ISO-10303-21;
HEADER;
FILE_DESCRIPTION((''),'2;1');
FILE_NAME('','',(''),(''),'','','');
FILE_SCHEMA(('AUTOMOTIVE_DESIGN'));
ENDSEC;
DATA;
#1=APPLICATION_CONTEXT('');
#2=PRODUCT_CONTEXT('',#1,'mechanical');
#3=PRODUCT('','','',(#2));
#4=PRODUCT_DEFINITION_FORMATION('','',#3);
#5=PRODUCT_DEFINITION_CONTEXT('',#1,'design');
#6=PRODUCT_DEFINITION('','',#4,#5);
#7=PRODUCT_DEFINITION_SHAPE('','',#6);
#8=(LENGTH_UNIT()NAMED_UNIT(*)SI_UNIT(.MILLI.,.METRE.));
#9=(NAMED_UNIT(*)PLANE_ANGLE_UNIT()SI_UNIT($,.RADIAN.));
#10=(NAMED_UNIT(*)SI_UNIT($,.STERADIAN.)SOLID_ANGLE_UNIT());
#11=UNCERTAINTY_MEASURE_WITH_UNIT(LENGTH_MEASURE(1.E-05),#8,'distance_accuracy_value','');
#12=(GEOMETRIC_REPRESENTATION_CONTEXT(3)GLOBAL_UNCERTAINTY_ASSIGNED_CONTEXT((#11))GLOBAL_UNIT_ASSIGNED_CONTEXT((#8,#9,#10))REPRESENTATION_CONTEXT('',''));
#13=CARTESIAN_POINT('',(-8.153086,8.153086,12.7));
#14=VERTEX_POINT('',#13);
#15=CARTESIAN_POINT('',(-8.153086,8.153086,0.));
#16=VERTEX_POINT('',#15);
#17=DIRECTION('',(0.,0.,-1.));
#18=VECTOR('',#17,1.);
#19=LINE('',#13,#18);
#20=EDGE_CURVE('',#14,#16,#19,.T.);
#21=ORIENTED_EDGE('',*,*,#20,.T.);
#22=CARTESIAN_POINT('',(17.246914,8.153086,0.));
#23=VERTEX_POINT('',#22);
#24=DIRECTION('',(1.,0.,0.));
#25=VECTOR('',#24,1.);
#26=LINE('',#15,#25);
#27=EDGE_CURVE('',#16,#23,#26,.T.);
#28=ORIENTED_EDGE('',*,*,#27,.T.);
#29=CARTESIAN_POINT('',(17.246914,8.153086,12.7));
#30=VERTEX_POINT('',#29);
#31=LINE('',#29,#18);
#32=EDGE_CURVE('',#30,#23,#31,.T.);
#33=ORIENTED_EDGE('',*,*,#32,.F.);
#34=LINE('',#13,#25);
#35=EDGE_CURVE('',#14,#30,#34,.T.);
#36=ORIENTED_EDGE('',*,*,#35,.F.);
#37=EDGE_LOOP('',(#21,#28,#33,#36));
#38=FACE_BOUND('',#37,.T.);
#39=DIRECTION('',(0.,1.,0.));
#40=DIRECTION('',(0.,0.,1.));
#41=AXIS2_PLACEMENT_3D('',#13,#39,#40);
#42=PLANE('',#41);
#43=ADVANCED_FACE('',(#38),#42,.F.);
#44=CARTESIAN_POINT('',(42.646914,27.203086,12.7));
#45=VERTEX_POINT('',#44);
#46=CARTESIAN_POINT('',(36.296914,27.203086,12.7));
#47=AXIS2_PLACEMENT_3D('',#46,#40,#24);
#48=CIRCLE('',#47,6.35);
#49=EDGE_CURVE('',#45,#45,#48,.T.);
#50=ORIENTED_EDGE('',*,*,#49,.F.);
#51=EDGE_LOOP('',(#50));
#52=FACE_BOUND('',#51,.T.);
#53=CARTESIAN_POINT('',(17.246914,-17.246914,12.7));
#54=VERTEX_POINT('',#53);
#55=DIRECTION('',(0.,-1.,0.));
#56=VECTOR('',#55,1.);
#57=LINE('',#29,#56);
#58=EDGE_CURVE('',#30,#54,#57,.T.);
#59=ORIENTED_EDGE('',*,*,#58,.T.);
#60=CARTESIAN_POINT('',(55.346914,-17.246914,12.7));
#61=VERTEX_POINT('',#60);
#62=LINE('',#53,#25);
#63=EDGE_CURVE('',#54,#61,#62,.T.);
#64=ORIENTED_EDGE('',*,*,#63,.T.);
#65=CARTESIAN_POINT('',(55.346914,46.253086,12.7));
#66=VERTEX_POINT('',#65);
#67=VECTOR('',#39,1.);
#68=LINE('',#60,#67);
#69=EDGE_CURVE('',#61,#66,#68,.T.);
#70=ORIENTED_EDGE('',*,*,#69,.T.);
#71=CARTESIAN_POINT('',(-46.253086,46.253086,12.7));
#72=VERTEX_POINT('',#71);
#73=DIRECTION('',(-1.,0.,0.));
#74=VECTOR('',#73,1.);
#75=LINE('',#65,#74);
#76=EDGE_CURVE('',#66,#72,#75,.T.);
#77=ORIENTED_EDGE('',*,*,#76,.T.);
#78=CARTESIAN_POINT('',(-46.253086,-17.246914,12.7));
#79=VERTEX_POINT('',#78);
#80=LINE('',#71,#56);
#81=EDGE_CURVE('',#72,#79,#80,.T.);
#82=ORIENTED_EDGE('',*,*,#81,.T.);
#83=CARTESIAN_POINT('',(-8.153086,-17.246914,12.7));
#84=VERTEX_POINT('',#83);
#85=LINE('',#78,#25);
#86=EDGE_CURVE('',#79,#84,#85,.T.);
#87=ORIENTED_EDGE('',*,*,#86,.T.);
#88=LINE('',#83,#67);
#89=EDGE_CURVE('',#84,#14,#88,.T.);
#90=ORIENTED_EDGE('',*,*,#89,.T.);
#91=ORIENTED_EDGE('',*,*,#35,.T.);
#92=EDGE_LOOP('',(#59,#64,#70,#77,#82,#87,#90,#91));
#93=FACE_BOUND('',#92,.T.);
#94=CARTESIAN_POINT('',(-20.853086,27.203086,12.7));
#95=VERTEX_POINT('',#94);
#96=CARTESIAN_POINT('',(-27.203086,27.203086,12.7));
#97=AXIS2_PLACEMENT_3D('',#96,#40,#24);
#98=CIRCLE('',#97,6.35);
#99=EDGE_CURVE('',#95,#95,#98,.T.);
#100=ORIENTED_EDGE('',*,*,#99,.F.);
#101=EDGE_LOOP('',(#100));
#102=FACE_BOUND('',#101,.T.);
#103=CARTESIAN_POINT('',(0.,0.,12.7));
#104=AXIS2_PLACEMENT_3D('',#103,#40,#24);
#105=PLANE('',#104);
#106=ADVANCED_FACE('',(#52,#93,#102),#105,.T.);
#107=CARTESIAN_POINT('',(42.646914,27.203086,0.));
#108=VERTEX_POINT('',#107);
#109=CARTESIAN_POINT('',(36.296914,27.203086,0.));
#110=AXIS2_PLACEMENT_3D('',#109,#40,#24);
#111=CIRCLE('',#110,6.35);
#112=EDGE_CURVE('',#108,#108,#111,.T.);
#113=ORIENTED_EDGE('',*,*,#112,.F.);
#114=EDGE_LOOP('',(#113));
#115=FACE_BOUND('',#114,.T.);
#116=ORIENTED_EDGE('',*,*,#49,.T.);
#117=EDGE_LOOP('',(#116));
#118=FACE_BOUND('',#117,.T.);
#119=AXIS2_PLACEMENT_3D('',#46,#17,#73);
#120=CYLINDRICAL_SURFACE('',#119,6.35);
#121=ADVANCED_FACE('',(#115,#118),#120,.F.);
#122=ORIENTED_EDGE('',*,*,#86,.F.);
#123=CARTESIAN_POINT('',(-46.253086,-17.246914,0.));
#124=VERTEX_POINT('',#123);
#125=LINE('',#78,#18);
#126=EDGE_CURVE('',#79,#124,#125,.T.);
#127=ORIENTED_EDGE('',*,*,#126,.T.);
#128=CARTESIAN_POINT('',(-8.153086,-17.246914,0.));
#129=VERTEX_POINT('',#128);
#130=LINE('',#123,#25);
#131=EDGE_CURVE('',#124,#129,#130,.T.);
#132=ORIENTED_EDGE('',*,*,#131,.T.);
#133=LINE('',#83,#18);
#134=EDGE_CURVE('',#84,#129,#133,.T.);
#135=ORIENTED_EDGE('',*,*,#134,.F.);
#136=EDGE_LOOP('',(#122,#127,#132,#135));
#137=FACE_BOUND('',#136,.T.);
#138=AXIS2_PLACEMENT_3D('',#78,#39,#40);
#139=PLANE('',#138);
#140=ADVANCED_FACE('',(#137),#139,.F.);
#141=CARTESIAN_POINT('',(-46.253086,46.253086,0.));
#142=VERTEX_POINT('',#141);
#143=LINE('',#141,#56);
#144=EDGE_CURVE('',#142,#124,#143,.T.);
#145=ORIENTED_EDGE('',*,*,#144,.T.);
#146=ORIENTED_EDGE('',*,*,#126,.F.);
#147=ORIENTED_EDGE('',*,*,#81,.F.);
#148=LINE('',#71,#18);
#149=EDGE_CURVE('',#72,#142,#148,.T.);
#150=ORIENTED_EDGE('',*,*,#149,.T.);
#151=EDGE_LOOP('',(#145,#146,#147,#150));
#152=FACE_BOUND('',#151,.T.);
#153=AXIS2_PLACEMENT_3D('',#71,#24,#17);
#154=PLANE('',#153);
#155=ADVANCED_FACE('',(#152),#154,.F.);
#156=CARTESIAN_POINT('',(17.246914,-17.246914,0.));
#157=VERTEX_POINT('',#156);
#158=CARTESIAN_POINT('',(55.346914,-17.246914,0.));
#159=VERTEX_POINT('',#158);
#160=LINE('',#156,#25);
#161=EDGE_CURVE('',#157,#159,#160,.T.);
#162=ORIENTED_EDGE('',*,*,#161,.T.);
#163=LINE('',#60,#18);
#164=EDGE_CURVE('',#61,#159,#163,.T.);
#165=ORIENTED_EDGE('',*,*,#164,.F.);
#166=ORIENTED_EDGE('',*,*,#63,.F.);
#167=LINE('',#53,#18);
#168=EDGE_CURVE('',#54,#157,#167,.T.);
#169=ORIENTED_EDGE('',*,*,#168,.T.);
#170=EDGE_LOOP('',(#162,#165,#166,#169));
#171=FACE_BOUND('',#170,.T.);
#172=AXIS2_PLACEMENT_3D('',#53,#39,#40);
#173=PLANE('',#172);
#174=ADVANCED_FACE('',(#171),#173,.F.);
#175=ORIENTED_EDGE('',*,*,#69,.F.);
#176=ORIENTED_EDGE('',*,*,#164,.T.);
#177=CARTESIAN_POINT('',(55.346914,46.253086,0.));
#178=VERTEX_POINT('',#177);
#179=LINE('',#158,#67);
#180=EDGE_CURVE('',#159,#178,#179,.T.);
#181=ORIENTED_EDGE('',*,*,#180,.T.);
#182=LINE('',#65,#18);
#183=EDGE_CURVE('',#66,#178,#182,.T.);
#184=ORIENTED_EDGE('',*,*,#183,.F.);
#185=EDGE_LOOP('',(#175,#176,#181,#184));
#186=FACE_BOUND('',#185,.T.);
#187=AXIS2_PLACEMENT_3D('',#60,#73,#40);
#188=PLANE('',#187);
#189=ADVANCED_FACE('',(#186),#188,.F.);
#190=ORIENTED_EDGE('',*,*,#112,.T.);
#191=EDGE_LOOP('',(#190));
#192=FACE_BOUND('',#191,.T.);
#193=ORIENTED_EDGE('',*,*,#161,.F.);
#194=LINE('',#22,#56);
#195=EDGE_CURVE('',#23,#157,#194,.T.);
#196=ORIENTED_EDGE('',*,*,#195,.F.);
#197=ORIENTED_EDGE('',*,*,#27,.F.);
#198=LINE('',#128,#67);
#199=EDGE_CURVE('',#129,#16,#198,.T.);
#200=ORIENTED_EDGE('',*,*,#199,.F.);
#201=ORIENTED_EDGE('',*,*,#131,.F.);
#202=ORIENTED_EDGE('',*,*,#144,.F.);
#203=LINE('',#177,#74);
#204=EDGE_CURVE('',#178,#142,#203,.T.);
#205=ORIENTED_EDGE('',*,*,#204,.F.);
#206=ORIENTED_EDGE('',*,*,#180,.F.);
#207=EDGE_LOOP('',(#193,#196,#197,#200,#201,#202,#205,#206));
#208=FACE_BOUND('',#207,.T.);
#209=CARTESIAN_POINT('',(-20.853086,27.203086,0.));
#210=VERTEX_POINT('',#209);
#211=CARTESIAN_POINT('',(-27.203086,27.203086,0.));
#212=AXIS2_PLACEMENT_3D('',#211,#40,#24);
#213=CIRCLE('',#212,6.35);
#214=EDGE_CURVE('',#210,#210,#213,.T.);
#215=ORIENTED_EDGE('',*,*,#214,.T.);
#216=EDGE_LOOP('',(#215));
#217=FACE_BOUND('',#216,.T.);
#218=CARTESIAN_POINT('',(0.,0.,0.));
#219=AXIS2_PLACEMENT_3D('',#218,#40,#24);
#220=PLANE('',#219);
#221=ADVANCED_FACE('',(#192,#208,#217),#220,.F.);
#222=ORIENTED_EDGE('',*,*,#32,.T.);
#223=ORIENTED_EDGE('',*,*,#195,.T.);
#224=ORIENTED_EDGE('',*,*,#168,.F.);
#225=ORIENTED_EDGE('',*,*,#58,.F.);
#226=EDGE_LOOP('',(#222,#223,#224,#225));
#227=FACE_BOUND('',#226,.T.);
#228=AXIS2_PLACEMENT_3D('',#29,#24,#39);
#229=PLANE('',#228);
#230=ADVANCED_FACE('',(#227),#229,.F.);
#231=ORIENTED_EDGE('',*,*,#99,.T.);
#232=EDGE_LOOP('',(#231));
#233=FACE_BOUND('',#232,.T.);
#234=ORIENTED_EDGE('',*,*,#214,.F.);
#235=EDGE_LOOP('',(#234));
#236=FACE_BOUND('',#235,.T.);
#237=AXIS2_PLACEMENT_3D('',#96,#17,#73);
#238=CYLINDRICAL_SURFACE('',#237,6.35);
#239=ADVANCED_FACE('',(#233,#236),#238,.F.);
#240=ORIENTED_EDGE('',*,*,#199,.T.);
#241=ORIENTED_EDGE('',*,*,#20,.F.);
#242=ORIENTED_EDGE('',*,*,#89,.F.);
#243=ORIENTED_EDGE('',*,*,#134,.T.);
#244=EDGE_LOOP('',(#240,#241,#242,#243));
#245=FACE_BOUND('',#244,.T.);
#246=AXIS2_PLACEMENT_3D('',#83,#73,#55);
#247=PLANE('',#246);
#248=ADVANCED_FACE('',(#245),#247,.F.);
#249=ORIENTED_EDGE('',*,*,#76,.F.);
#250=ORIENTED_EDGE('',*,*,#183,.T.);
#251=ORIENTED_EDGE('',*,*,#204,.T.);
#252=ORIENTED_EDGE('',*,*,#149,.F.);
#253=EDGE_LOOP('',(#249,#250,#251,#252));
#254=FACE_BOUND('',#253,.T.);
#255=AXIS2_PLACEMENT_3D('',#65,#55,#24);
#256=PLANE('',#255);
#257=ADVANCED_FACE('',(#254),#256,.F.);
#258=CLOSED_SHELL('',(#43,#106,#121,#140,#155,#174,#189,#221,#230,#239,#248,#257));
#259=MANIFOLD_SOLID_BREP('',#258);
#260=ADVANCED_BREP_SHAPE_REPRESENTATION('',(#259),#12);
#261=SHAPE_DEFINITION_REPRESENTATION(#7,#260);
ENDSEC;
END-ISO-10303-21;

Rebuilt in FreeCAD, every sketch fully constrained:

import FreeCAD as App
import Part
import Sketcher
Q = App.Units.Quantity

doc = App.newDocument("Part")
body = doc.addObject("PartDesign::Body", "Body")

# Sketch on XY plane
sketch1 = doc.addObject("Sketcher::SketchObject", "Sketch")
body.addObject(sketch1)
sketch1.AttachmentSupport = (doc.XY_Plane, [""])
sketch1.MapMode = "FlatFace"
sketch1.addGeometry([
    Part.LineSegment(App.Vector(-46.253086, 46.253086, 0), App.Vector(-46.253086, -17.246914, 0)),  # 0
    Part.LineSegment(App.Vector(-46.253086, -17.246914, 0), App.Vector(-8.153086, -17.246914, 0)),  # 1
    Part.LineSegment(App.Vector(-8.153086, -17.246914, 0), App.Vector(-8.153086, 8.153086, 0)),  # 2
    Part.LineSegment(App.Vector(-8.153086, 8.153086, 0), App.Vector(17.246914, 8.153086, 0)),  # 3
    Part.LineSegment(App.Vector(17.246914, 8.153086, 0), App.Vector(17.246914, -17.246914, 0)),  # 4
    Part.LineSegment(App.Vector(17.246914, -17.246914, 0), App.Vector(55.346914, -17.246914, 0)),  # 5
    Part.LineSegment(App.Vector(55.346914, -17.246914, 0), App.Vector(55.346914, 46.253086, 0)),  # 6
    Part.LineSegment(App.Vector(55.346914, 46.253086, 0), App.Vector(-46.253086, 46.253086, 0)),  # 7
    Part.Circle(App.Vector(36.296914, 27.203086, 0), App.Vector(0, 0, 1), 6.35),  # 8
    Part.Circle(App.Vector(-27.203086, 27.203086, 0), App.Vector(0, 0, 1), 6.35),  # 9
], False)
sketch1.addConstraint([
    Sketcher.Constraint("Coincident", 0, 2, 1, 1),
    Sketcher.Constraint("Coincident", 1, 2, 2, 1),
    Sketcher.Constraint("Coincident", 2, 2, 3, 1),
    Sketcher.Constraint("Coincident", 3, 2, 4, 1),
    Sketcher.Constraint("Coincident", 4, 2, 5, 1),
    Sketcher.Constraint("Coincident", 5, 2, 6, 1),
    Sketcher.Constraint("Coincident", 6, 2, 7, 1),
    Sketcher.Constraint("Coincident", 7, 2, 0, 1),
    Sketcher.Constraint("Vertical", 0),
    Sketcher.Constraint("Horizontal", 1),
    Sketcher.Constraint("Vertical", 2),
    Sketcher.Constraint("Horizontal", 3),
    Sketcher.Constraint("Vertical", 4),
    Sketcher.Constraint("Horizontal", 5),
    Sketcher.Constraint("Vertical", 6),
    Sketcher.Constraint("Horizontal", 7),
    Sketcher.Constraint("Equal", 8, 9),
    Sketcher.Constraint("Horizontal", 8, 3, 9, 3),
    Sketcher.Constraint("Horizontal", 1, 2, 4, 2),
    Sketcher.Constraint("Equal", 1, 5),
    Sketcher.Constraint("Equal", 3, 2),
    Sketcher.Constraint("Diameter", 8, Q("0.5 in")),
    Sketcher.Constraint("DistanceX", 3, 1, 3, 2, Q("1 in")),
    Sketcher.Constraint("DistanceX", 7, 2, 7, 1, Q("4 in")),
    Sketcher.Constraint("DistanceY", 0, 2, 0, 1, Q("2.5 in")),
    Sketcher.Constraint("DistanceX", 9, 3, 8, 3, Q("2.5 in")),
    Sketcher.Constraint("DistanceX", 0, 2, 9, 3, Q("0.75 in")),
    Sketcher.Constraint("DistanceY", 0, 2, 9, 3, Q("1.75 in")),
    Sketcher.Constraint("DistanceX", -1, 1, 8, 3, Q("36.296914 mm")),
    Sketcher.Constraint("DistanceY", -1, 1, 8, 3, Q("27.203086 mm")),
])
pad1 = doc.addObject("PartDesign::Pad", "Pad")
body.addObject(pad1)
pad1.Profile = sketch1
pad1.Length = Q("0.5 in")

doc.recompute()
